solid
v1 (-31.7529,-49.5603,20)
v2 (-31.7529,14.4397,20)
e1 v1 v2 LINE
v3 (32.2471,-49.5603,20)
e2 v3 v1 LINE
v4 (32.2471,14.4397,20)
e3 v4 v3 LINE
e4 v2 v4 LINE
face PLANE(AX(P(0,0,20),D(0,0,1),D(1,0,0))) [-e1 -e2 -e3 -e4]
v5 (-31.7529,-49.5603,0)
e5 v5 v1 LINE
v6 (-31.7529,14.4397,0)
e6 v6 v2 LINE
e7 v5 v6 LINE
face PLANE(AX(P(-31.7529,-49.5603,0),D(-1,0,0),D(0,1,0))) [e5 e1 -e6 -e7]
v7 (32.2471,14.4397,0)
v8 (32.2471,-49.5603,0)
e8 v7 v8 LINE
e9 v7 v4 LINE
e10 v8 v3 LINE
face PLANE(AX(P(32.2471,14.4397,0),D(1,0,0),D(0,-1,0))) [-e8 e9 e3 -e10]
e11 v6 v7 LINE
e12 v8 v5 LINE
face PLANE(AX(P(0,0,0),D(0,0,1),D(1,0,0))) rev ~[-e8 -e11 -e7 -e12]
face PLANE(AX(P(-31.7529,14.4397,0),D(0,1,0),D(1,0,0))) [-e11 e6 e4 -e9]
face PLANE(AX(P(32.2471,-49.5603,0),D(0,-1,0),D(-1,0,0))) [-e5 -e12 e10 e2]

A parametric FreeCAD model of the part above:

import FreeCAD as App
import Part
import Sketcher
from FreeCAD import Vector
Q = App.Units.Quantity


def add_polygon(sketch, points):
    """Adds a closed chain of lines whose ends are joined by coincident constraints."""
    first, n = sketch.GeometryCount, len(points)
    for a, b in zip(points, points[1:] + points[:1]):
        sketch.addGeometry(Part.LineSegment(App.Vector(*a, 0), App.Vector(*b, 0)), False)
    for i in range(n):
        sketch.addConstraint(Sketcher.Constraint("Coincident", first + i, 2, first + (i + 1) % n, 1))

doc = App.newDocument("Part")
params = doc.addObject("Spreadsheet::Sheet", "Params")
for row, (alias, value) in enumerate([
    ("sketch1_width", "64 mm"),
    ("pad1_length", "20 mm"),
], start=1):
    params.set(f"A{row}", alias)
    params.set(f"B{row}", "=" + value)
    params.setAlias(f"B{row}", alias)

body = doc.addObject("PartDesign::Body", "Body")

sketch1 = body.newObject("Sketcher::SketchObject", "Sketch")
sketch1.AttachmentSupport = (doc.getObject("XY_Plane"), [""])
sketch1.MapMode = "FlatFace"
add_polygon(sketch1, [(32, 14), (-32, 14), (-32, -50), (32, -50)])
sketch1.addConstraint([
    Sketcher.Constraint("Horizontal", 0),
    Sketcher.Constraint("Vertical", 1),
    Sketcher.Constraint("Horizontal", 2),
    Sketcher.Constraint("Vertical", 3),
    Sketcher.Constraint("Equal", 2, 1),
    Sketcher.Constraint("DistanceX", 0, 2, 0, 1, Q("64 mm")),
    Sketcher.Constraint("DistanceX", 0, 2, -1, 1, Q("31.753 mm")),
    Sketcher.Constraint("DistanceY", -1, 1, 0, 2, Q("14.4397 mm")),
])
sketch1.setExpression("Constraints[9]", "Params.sketch1_width")
pad1 = body.newObject("PartDesign::Pad", "Pad")
pad1.Profile = sketch1
pad1.setExpression("Length", "Params.pad1_length")

doc.recompute()
